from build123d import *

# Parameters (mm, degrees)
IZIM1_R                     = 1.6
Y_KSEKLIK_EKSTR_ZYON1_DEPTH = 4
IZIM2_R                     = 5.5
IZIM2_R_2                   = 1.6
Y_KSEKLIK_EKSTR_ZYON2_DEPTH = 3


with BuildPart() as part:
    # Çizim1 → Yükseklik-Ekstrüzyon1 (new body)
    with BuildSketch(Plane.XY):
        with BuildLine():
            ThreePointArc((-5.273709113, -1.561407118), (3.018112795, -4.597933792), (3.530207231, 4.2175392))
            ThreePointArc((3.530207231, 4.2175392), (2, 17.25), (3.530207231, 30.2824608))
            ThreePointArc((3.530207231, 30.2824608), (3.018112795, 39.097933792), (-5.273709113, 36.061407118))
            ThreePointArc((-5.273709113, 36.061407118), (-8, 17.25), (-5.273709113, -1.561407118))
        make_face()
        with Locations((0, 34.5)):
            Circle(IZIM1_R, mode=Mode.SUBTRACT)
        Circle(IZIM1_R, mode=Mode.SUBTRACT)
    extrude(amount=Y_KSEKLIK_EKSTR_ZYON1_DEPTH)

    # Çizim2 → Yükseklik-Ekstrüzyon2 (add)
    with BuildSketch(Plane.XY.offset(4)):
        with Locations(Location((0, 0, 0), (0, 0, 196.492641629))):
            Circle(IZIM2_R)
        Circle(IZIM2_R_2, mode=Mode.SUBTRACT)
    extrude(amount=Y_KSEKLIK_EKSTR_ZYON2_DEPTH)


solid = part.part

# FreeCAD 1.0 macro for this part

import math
import FreeCAD as App
import Part
import Sketcher
from FreeCAD import Vector

doc = App.newDocument("Part")
params = doc.addObject("Spreadsheet::Sheet", "Params")
for row, (alias, value) in enumerate([
    ("sketch1_diameter", "3.2 mm"),
    ("sketch1_radius", "5.5 mm"),
    ("pad1_length", "4 mm"),
    ("sketch2_diameter", "11 mm"),
    ("sketch2_diameter2", "3.2 mm"),
    ("pad2_length", "3 mm"),
], start=1):
    params.set(f"A{row}", alias)
    params.set(f"B{row}", "=" + value)
    params.setAlias(f"B{row}", alias)

body = doc.addObject("PartDesign::Body", "Body")

# Sketch on XY plane
sketch1 = doc.addObject("Sketcher::SketchObject", "Sketch")
body.addObject(sketch1)
sketch1.AttachmentSupport = (doc.XY_Plane, [""])
sketch1.MapMode = "FlatFace"
sketch1.addGeometry(Part.ArcOfCircle(Part.Circle(Vector(0, 0, 0), Vector(0, 0, 1), 5.5), math.radians(-164), math.radians(50)), False)
sketch1.addGeometry(Part.ArcOfCircle(Part.Circle(Vector(58.3, 17.2, 0), Vector(0, 0, 1), 56.3), math.radians(167), math.radians(193)), False)
sketch1.addGeometry(Part.ArcOfCircle(Part.Circle(Vector(0, 34.5, 0), Vector(0, 0, 1), 5.5), math.radians(-50), math.radians(164)), False)
sketch1.addGeometry(Part.ArcOfCircle(Part.Circle(Vector(58.3, 17.2, 0), Vector(0, 0, 1), 66.3), math.radians(164), math.radians(196)), False)
sketch1.addGeometry(Part.Circle(Vector(0, 0, 0), Vector(0, 0, 1), 1.6), False)
sketch1.addGeometry(Part.Circle(Vector(0, 34.5, 0), Vector(0, 0, 1), 1.6), False)
sketch1.addConstraint(Sketcher.Constraint("Coincident", 0, 2, 1, 2))
sketch1.addConstraint(Sketcher.Constraint("Coincident", 1, 1, 2, 1))
sketch1.addConstraint(Sketcher.Constraint("Tangent", 2, 2, 3, 1))
sketch1.addConstraint(Sketcher.Constraint("Tangent", 3, 2, 0, 1))
sketch1.addConstraint(Sketcher.Constraint("Coincident", 0, 3, -1, 1))
sketch1.addConstraint(Sketcher.Constraint("Coincident", 4, 3, -1, 1))
sketch1.addConstraint(Sketcher.Constraint("Coincident", 3, 3, 1, 3))
sketch1.addConstraint(Sketcher.Constraint("Coincident", 5, 3, 2, 3))
sketch1.addConstraint(Sketcher.Constraint("Equal", 0, 2))
sketch1.addConstraint(Sketcher.Constraint("Equal", 4, 5))
sketch1.addConstraint(Sketcher.Constraint("PointOnObject", 2, 3, -2))
sketch1.addConstraint(Sketcher.Constraint("Diameter", 4, 3.2))
sketch1.addConstraint(Sketcher.Constraint("Radius", 0, 5.5))
sketch1.addConstraint(Sketcher.Constraint("DistanceY", -1, 1, 2, 3, 34.5))
sketch1.addConstraint(Sketcher.Constraint("Radius", 1, 56.2625))
sketch1.addConstraint(Sketcher.Constraint("Radius", 3, 66.2625))
sketch1.setExpression("Constraints[11]", "Params.sketch1_diameter")
sketch1.setExpression("Constraints[12]", "Params.sketch1_radius")
pad1 = doc.addObject("PartDesign::Pad", "Pad")
body.addObject(pad1)
pad1.Profile = sketch1
pad1.setExpression("Length", "Params.pad1_length")

# Sketch on XY plane
sketch2 = doc.addObject("Sketcher::SketchObject", "Sketch001")
body.addObject(sketch2)
sketch2.AttachmentSupport = (doc.XY_Plane, [""])
sketch2.MapMode = "FlatFace"
sketch2.AttachmentOffset = App.Placement(Vector(0, 0, 4), App.Rotation())
sketch2.addGeometry(Part.Circle(Vector(0, 0, 0), Vector(0, 0, 1), 5.5), False)
sketch2.addGeometry(Part.Circle(Vector(0, 0, 0), Vector(0, 0, 1), 1.6), False)
sketch2.addConstraint(Sketcher.Constraint("Coincident", 0, 3, -1, 1))
sketch2.addConstraint(Sketcher.Constraint("Coincident", 1, 3, -1, 1))
sketch2.addConstraint(Sketcher.Constraint("Diameter", 0, 11.0))
sketch2.addConstraint(Sketcher.Constraint("Diameter", 1, 3.2))
sketch2.setExpression("Constraints[2]", "Params.sketch2_diameter")
sketch2.setExpression("Constraints[3]", "Params.sketch2_diameter2")
pad2 = doc.addObject("PartDesign::Pad", "Pad001")
body.addObject(pad2)
pad2.Profile = sketch2
pad2.setExpression("Length", "Params.pad2_length")

doc.recompute()
